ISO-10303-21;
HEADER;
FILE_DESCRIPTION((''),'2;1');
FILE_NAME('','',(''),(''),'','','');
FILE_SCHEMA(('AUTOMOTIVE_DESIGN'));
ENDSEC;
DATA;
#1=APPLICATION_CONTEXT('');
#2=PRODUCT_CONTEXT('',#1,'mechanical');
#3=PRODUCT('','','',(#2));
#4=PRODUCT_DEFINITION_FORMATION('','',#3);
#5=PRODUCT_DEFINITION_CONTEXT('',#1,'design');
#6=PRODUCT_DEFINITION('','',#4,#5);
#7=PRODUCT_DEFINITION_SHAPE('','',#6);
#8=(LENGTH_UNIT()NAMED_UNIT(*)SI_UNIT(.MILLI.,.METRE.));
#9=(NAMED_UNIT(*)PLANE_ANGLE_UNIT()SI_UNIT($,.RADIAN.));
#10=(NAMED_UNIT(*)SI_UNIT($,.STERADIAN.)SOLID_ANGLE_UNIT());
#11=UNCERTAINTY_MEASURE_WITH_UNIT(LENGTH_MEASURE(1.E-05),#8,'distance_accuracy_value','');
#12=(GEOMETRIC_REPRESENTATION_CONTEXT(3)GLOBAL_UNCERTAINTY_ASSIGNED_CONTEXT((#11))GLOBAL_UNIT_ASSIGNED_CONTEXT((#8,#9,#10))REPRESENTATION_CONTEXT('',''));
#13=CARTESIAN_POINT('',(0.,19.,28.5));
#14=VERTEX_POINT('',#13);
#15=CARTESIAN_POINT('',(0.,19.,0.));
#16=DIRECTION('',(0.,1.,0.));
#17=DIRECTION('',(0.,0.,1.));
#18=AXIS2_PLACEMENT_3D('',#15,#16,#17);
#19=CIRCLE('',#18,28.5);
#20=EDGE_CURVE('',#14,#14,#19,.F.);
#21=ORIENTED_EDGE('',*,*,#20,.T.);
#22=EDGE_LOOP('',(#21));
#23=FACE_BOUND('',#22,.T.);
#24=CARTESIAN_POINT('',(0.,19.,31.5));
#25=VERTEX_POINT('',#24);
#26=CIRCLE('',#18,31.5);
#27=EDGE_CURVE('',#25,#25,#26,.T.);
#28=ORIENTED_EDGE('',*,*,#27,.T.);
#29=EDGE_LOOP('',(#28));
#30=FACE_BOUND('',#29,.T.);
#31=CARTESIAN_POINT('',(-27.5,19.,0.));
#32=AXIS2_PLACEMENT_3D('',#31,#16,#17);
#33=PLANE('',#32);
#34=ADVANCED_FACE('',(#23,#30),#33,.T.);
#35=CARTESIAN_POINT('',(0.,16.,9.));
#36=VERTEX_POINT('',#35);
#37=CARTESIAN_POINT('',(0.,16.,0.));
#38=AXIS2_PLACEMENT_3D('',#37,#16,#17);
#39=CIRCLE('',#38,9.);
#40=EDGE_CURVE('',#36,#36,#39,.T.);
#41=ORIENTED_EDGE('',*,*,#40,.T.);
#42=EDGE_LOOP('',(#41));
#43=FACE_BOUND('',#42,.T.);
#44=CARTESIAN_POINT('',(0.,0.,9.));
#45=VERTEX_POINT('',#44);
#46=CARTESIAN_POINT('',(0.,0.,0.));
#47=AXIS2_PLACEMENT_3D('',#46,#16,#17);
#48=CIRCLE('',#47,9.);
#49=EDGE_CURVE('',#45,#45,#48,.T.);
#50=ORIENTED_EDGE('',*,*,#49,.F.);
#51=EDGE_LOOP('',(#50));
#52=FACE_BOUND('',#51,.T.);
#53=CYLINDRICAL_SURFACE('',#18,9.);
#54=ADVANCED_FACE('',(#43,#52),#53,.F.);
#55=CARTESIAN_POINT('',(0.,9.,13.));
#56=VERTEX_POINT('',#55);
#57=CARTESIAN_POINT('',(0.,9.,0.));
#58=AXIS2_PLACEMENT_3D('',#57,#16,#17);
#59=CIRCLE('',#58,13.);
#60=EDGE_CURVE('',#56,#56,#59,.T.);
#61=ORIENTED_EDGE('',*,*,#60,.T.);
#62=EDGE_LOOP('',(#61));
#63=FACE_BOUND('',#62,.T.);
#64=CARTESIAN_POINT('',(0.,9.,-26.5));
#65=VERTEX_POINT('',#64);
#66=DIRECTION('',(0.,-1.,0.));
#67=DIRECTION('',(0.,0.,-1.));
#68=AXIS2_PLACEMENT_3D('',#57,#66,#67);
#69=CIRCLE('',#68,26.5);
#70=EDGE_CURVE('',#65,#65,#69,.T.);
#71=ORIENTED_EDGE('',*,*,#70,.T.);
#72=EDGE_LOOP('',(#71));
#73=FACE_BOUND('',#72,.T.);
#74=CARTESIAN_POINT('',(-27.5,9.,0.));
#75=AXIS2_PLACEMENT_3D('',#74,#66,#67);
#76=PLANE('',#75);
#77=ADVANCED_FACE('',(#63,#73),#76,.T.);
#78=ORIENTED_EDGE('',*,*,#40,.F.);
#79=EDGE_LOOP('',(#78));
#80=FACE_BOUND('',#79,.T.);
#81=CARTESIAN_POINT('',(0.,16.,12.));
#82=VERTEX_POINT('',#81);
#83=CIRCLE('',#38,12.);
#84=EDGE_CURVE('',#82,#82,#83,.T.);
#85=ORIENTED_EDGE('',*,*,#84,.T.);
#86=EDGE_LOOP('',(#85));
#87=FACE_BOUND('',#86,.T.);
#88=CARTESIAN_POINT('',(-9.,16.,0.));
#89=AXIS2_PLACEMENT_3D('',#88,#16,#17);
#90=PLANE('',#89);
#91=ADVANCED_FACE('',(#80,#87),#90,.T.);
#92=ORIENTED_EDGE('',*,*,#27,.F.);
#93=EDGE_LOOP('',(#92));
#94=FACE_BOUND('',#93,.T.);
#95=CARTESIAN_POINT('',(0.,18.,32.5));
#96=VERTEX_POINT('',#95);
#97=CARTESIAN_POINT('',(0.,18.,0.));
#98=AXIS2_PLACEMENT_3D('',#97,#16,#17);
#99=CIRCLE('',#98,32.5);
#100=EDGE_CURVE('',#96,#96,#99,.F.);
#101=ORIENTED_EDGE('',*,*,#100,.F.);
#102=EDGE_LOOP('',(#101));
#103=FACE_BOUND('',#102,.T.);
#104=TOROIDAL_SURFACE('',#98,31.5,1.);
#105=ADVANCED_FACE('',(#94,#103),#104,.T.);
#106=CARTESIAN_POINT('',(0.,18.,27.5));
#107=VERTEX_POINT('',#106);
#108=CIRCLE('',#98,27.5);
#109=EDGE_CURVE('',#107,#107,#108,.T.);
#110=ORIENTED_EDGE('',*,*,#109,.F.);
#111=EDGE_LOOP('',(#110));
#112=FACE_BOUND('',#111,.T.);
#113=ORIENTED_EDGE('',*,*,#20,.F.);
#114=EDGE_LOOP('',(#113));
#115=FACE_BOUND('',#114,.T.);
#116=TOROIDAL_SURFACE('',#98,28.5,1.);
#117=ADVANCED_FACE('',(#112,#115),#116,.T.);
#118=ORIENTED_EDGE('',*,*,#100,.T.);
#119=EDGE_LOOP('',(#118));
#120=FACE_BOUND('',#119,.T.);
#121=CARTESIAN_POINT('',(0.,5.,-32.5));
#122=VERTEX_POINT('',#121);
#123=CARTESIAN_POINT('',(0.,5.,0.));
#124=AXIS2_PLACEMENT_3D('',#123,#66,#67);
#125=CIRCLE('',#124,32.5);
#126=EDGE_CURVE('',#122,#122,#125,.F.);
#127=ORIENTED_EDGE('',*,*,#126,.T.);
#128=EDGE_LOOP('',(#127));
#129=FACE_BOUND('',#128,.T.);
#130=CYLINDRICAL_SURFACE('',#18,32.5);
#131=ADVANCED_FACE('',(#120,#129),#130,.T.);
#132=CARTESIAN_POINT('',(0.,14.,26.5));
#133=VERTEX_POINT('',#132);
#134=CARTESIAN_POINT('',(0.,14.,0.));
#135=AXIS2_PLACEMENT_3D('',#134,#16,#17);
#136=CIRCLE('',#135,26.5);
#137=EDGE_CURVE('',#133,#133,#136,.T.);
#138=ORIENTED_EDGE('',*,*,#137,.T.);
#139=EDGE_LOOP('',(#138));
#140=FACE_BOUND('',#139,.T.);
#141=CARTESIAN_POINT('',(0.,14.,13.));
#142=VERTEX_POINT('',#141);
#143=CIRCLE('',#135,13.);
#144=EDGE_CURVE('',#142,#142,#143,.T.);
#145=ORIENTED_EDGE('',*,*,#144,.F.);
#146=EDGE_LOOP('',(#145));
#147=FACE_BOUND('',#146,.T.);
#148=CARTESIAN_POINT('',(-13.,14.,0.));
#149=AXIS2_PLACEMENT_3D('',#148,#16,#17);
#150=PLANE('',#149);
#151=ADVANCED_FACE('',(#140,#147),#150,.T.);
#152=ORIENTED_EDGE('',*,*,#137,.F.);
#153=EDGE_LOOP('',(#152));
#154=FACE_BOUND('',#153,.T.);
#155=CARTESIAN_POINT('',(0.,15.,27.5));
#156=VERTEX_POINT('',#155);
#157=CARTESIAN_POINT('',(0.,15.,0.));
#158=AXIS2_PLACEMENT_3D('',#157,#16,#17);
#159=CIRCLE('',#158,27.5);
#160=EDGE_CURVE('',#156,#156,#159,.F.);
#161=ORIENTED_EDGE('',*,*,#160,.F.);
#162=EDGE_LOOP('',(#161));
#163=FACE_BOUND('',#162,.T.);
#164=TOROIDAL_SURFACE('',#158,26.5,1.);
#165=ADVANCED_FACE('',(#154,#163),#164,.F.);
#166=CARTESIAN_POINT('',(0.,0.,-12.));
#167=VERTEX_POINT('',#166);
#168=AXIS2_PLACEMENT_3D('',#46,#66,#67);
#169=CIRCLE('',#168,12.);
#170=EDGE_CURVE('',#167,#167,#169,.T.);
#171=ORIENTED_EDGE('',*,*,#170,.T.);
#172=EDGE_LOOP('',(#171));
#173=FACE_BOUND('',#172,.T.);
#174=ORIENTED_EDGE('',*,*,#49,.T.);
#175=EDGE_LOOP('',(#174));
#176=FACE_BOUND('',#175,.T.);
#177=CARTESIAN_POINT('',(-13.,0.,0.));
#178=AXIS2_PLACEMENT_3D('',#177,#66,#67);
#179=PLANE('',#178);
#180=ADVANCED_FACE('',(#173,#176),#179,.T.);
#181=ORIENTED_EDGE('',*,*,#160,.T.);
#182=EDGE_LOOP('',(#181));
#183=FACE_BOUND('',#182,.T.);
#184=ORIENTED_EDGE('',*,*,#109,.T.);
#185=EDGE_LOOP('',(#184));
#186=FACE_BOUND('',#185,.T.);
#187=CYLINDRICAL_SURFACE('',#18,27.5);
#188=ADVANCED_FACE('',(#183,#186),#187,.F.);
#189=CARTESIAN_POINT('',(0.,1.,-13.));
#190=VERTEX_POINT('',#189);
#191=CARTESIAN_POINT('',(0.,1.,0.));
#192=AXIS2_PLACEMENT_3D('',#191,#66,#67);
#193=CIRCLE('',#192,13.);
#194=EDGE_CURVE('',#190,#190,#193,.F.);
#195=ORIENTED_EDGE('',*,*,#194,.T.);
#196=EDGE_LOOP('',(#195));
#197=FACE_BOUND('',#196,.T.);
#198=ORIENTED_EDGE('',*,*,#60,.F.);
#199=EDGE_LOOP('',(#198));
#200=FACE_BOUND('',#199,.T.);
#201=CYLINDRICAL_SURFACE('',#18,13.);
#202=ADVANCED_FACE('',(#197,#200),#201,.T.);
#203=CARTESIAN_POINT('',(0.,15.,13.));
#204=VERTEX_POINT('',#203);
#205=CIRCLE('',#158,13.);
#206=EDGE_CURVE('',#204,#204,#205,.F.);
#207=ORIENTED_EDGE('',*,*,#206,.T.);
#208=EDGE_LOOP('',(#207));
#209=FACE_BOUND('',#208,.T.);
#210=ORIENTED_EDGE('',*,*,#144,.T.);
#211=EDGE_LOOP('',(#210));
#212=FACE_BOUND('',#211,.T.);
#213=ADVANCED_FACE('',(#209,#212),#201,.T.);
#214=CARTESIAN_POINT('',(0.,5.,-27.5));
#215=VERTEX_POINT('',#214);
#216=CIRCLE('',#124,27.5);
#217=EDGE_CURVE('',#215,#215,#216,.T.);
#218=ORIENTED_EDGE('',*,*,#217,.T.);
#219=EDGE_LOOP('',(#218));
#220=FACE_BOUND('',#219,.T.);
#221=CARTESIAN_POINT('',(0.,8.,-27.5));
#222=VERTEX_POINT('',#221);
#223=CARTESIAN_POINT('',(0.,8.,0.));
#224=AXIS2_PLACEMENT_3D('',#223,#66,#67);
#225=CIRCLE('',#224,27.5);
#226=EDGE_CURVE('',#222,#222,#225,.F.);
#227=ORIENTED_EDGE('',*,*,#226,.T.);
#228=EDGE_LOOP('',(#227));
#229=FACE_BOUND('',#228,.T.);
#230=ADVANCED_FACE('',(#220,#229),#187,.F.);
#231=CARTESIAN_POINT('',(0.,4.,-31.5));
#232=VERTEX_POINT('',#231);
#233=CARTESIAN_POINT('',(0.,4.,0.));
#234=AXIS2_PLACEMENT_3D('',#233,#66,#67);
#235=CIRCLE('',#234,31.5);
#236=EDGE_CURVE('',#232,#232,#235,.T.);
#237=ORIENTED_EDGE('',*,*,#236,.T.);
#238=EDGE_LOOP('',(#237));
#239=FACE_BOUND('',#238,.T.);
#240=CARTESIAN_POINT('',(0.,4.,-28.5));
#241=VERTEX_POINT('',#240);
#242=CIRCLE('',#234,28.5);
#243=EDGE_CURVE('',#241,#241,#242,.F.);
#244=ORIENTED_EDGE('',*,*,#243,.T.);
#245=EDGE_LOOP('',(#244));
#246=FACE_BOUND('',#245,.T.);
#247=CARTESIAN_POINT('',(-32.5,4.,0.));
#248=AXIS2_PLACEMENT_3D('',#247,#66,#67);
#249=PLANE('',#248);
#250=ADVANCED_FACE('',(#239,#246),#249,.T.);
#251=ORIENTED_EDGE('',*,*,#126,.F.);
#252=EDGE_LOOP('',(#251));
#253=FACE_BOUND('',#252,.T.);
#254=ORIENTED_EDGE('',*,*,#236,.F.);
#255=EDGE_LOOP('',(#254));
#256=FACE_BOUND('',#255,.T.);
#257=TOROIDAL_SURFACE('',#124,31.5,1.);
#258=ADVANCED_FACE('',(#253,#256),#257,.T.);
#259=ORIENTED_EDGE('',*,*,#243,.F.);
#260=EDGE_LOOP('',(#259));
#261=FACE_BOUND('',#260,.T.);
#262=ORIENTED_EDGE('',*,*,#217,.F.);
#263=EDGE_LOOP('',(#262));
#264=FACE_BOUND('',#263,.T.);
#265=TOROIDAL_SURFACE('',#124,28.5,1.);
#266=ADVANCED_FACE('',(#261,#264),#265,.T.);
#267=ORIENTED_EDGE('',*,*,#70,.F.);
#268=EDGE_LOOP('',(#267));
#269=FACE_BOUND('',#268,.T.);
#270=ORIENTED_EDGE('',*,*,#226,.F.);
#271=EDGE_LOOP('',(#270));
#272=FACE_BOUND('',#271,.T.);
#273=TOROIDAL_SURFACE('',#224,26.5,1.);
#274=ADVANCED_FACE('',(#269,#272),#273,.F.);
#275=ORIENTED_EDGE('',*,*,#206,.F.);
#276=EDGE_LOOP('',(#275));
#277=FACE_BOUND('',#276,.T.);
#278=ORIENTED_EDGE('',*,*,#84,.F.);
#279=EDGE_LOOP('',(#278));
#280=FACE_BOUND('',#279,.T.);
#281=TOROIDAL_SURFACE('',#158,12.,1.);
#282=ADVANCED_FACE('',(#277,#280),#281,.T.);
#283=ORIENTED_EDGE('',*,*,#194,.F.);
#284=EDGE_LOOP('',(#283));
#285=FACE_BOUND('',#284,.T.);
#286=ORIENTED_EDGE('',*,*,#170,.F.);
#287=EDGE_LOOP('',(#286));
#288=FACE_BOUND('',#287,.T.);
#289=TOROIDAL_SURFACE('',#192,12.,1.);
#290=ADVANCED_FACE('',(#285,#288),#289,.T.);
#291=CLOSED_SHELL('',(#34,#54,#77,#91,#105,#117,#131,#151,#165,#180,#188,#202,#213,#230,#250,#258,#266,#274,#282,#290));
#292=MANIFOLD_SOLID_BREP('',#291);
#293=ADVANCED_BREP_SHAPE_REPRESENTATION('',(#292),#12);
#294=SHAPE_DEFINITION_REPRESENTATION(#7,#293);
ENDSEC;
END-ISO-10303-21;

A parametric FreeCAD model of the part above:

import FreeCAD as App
import Part
import Sketcher

V = App.Vector


def edges_at(feature, points):
    """Names of the edges that pass closest to the given points."""
    edges = feature.Shape.Edges
    near = lambda p: min(range(len(edges)), key=lambda i: edges[i].distToShape(Part.Vertex(*p))[0])
    return sorted({f"Edge{near(p) + 1}" for p in points})

doc = App.newDocument("Part")
params = doc.addObject("Spreadsheet::Sheet", "Params")
for row, (alias, value) in enumerate([
    ("sketch1_width", "4 mm"),
    ("sketch1_width2", "5 mm"),
    ("sketch1_height", "2 mm"),
    ("sketch1_height2", "15 mm"),
    ("sketch1_height3", "9 mm"),
    ("revolution_angle", "360 deg"),
    ("fillet_radius", "1 mm"),
], start=1):
    params.set(f"A{row}", alias)
    params.set(f"B{row}", "=" + value)
    params.setAlias(f"B{row}", alias)

body = doc.addObject("PartDesign::Body", "Body")

# Sketch on XY plane
sketch1 = body.newObject("Sketcher::SketchObject", "Sketch")
sketch1.AttachmentSupport = (doc.getObject("XY_Plane"), [""])
sketch1.MapMode = "FlatFace"
sketch1.addGeometry([
    Part.LineSegment(V(-9, 16, 0), V(-13, 16, 0)),  # 0
    Part.LineSegment(V(-13, 16, 0), V(-13, 14, 0)),  # 1
    Part.LineSegment(V(-13, 14, 0), V(-27.5, 14, 0)),  # 2
    Part.LineSegment(V(-27.5, 14, 0), V(-27.5, 19, 0)),  # 3
    Part.LineSegment(V(-27.5, 19, 0), V(-32.5, 19, 0)),  # 4
    Part.LineSegment(V(-32.5, 19, 0), V(-32.5, 4, 0)),  # 5
    Part.LineSegment(V(-32.5, 4, 0), V(-27.5, 4, 0)),  # 6
    Part.LineSegment(V(-27.5, 4, 0), V(-27.5, 9, 0)),  # 7
    Part.LineSegment(V(-27.5, 9, 0), V(-13, 9, 0)),  # 8
    Part.LineSegment(V(-13, 9, 0), V(-13, 0, 0)),  # 9
    Part.LineSegment(V(-13, 0, 0), V(-9, 0, 0)),  # 10
    Part.LineSegment(V(-9, 0, 0), V(-9, 16, 0)),  # 11
], False)
sketch1.addConstraint([
    Sketcher.Constraint("Coincident", 0, 2, 1, 1),
    Sketcher.Constraint("Coincident", 1, 2, 2, 1),
    Sketcher.Constraint("Coincident", 2, 2, 3, 1),
    Sketcher.Constraint("Coincident", 3, 2, 4, 1),
    Sketcher.Constraint("Coincident", 4, 2, 5, 1),
    Sketcher.Constraint("Coincident", 5, 2, 6, 1),
    Sketcher.Constraint("Coincident", 6, 2, 7, 1),
    Sketcher.Constraint("Coincident", 7, 2, 8, 1),
    Sketcher.Constraint("Coincident", 8, 2, 9, 1),
    Sketcher.Constraint("Coincident", 9, 2, 10, 1),
    Sketcher.Constraint("Coincident", 10, 2, 11, 1),
    Sketcher.Constraint("Coincident", 11, 2, 0, 1),
    Sketcher.Constraint("Horizontal", 0),
    Sketcher.Constraint("Vertical", 1),
    Sketcher.Constraint("Horizontal", 2),
    Sketcher.Constraint("Vertical", 3),
    Sketcher.Constraint("Horizontal", 4),
    Sketcher.Constraint("Vertical", 5),
    Sketcher.Constraint("Horizontal", 6),
    Sketcher.Constraint("Vertical", 7),
    Sketcher.Constraint("Horizontal", 8),
    Sketcher.Constraint("Vertical", 9),
    Sketcher.Constraint("Horizontal", 10),
    Sketcher.Constraint("Vertical", 11),
    Sketcher.Constraint("PointOnObject", 9, 2, -1),
    Sketcher.Constraint("Vertical", 3, 2, 6, 2),
    Sketcher.Constraint("Vertical", 1, 2, 8, 2),
    Sketcher.Constraint("Equal", 6, 3),
    Sketcher.Constraint("Equal", 3, 7),
    Sketcher.Constraint("DistanceX", 0, 2, 0, 1, 4.0),
    Sketcher.Constraint("DistanceX", 4, 2, 4, 1, 5.0),
    Sketcher.Constraint("DistanceY", 1, 2, 1, 1, 2.0),
    Sketcher.Constraint("DistanceY", 5, 2, 5, 1, 15.0),
    Sketcher.Constraint("DistanceY", 9, 2, 9, 1, 9.0),
    Sketcher.Constraint("DistanceX", 2, 2, 2, 1, 14.5),
    Sketcher.Constraint("DistanceX", 0, 2, -1, 1, 13.0),
])
sketch1.setExpression("Constraints[29]", "Params.sketch1_width")
sketch1.setExpression("Constraints[30]", "Params.sketch1_width2")
sketch1.setExpression("Constraints[31]", "Params.sketch1_height")
sketch1.setExpression("Constraints[32]", "Params.sketch1_height2")
sketch1.setExpression("Constraints[33]", "Params.sketch1_height3")
revolution = body.newObject("PartDesign::Revolution", "Revolution")
revolution.Profile = sketch1
revolution.ReferenceAxis = (sketch1, ["V_Axis"])
revolution.setExpression("Angle", "Params.revolution_angle")
doc.recompute()

fillet = body.newObject("PartDesign::Fillet", "Fillet")
fillet.Base = (revolution, edges_at(revolution, [
    (0, 4, -27.5),
    (0, 4, -32.5),
    (0, 19, -32.5),
    (0, 19, -27.5),
    (0, 14, -27.5),
    (0, 16, -13),
    (0, 0, -13),
    (0, 9, -27.5),
]))
fillet.setExpression("Radius", "Params.fillet_radius")

doc.recompute()
